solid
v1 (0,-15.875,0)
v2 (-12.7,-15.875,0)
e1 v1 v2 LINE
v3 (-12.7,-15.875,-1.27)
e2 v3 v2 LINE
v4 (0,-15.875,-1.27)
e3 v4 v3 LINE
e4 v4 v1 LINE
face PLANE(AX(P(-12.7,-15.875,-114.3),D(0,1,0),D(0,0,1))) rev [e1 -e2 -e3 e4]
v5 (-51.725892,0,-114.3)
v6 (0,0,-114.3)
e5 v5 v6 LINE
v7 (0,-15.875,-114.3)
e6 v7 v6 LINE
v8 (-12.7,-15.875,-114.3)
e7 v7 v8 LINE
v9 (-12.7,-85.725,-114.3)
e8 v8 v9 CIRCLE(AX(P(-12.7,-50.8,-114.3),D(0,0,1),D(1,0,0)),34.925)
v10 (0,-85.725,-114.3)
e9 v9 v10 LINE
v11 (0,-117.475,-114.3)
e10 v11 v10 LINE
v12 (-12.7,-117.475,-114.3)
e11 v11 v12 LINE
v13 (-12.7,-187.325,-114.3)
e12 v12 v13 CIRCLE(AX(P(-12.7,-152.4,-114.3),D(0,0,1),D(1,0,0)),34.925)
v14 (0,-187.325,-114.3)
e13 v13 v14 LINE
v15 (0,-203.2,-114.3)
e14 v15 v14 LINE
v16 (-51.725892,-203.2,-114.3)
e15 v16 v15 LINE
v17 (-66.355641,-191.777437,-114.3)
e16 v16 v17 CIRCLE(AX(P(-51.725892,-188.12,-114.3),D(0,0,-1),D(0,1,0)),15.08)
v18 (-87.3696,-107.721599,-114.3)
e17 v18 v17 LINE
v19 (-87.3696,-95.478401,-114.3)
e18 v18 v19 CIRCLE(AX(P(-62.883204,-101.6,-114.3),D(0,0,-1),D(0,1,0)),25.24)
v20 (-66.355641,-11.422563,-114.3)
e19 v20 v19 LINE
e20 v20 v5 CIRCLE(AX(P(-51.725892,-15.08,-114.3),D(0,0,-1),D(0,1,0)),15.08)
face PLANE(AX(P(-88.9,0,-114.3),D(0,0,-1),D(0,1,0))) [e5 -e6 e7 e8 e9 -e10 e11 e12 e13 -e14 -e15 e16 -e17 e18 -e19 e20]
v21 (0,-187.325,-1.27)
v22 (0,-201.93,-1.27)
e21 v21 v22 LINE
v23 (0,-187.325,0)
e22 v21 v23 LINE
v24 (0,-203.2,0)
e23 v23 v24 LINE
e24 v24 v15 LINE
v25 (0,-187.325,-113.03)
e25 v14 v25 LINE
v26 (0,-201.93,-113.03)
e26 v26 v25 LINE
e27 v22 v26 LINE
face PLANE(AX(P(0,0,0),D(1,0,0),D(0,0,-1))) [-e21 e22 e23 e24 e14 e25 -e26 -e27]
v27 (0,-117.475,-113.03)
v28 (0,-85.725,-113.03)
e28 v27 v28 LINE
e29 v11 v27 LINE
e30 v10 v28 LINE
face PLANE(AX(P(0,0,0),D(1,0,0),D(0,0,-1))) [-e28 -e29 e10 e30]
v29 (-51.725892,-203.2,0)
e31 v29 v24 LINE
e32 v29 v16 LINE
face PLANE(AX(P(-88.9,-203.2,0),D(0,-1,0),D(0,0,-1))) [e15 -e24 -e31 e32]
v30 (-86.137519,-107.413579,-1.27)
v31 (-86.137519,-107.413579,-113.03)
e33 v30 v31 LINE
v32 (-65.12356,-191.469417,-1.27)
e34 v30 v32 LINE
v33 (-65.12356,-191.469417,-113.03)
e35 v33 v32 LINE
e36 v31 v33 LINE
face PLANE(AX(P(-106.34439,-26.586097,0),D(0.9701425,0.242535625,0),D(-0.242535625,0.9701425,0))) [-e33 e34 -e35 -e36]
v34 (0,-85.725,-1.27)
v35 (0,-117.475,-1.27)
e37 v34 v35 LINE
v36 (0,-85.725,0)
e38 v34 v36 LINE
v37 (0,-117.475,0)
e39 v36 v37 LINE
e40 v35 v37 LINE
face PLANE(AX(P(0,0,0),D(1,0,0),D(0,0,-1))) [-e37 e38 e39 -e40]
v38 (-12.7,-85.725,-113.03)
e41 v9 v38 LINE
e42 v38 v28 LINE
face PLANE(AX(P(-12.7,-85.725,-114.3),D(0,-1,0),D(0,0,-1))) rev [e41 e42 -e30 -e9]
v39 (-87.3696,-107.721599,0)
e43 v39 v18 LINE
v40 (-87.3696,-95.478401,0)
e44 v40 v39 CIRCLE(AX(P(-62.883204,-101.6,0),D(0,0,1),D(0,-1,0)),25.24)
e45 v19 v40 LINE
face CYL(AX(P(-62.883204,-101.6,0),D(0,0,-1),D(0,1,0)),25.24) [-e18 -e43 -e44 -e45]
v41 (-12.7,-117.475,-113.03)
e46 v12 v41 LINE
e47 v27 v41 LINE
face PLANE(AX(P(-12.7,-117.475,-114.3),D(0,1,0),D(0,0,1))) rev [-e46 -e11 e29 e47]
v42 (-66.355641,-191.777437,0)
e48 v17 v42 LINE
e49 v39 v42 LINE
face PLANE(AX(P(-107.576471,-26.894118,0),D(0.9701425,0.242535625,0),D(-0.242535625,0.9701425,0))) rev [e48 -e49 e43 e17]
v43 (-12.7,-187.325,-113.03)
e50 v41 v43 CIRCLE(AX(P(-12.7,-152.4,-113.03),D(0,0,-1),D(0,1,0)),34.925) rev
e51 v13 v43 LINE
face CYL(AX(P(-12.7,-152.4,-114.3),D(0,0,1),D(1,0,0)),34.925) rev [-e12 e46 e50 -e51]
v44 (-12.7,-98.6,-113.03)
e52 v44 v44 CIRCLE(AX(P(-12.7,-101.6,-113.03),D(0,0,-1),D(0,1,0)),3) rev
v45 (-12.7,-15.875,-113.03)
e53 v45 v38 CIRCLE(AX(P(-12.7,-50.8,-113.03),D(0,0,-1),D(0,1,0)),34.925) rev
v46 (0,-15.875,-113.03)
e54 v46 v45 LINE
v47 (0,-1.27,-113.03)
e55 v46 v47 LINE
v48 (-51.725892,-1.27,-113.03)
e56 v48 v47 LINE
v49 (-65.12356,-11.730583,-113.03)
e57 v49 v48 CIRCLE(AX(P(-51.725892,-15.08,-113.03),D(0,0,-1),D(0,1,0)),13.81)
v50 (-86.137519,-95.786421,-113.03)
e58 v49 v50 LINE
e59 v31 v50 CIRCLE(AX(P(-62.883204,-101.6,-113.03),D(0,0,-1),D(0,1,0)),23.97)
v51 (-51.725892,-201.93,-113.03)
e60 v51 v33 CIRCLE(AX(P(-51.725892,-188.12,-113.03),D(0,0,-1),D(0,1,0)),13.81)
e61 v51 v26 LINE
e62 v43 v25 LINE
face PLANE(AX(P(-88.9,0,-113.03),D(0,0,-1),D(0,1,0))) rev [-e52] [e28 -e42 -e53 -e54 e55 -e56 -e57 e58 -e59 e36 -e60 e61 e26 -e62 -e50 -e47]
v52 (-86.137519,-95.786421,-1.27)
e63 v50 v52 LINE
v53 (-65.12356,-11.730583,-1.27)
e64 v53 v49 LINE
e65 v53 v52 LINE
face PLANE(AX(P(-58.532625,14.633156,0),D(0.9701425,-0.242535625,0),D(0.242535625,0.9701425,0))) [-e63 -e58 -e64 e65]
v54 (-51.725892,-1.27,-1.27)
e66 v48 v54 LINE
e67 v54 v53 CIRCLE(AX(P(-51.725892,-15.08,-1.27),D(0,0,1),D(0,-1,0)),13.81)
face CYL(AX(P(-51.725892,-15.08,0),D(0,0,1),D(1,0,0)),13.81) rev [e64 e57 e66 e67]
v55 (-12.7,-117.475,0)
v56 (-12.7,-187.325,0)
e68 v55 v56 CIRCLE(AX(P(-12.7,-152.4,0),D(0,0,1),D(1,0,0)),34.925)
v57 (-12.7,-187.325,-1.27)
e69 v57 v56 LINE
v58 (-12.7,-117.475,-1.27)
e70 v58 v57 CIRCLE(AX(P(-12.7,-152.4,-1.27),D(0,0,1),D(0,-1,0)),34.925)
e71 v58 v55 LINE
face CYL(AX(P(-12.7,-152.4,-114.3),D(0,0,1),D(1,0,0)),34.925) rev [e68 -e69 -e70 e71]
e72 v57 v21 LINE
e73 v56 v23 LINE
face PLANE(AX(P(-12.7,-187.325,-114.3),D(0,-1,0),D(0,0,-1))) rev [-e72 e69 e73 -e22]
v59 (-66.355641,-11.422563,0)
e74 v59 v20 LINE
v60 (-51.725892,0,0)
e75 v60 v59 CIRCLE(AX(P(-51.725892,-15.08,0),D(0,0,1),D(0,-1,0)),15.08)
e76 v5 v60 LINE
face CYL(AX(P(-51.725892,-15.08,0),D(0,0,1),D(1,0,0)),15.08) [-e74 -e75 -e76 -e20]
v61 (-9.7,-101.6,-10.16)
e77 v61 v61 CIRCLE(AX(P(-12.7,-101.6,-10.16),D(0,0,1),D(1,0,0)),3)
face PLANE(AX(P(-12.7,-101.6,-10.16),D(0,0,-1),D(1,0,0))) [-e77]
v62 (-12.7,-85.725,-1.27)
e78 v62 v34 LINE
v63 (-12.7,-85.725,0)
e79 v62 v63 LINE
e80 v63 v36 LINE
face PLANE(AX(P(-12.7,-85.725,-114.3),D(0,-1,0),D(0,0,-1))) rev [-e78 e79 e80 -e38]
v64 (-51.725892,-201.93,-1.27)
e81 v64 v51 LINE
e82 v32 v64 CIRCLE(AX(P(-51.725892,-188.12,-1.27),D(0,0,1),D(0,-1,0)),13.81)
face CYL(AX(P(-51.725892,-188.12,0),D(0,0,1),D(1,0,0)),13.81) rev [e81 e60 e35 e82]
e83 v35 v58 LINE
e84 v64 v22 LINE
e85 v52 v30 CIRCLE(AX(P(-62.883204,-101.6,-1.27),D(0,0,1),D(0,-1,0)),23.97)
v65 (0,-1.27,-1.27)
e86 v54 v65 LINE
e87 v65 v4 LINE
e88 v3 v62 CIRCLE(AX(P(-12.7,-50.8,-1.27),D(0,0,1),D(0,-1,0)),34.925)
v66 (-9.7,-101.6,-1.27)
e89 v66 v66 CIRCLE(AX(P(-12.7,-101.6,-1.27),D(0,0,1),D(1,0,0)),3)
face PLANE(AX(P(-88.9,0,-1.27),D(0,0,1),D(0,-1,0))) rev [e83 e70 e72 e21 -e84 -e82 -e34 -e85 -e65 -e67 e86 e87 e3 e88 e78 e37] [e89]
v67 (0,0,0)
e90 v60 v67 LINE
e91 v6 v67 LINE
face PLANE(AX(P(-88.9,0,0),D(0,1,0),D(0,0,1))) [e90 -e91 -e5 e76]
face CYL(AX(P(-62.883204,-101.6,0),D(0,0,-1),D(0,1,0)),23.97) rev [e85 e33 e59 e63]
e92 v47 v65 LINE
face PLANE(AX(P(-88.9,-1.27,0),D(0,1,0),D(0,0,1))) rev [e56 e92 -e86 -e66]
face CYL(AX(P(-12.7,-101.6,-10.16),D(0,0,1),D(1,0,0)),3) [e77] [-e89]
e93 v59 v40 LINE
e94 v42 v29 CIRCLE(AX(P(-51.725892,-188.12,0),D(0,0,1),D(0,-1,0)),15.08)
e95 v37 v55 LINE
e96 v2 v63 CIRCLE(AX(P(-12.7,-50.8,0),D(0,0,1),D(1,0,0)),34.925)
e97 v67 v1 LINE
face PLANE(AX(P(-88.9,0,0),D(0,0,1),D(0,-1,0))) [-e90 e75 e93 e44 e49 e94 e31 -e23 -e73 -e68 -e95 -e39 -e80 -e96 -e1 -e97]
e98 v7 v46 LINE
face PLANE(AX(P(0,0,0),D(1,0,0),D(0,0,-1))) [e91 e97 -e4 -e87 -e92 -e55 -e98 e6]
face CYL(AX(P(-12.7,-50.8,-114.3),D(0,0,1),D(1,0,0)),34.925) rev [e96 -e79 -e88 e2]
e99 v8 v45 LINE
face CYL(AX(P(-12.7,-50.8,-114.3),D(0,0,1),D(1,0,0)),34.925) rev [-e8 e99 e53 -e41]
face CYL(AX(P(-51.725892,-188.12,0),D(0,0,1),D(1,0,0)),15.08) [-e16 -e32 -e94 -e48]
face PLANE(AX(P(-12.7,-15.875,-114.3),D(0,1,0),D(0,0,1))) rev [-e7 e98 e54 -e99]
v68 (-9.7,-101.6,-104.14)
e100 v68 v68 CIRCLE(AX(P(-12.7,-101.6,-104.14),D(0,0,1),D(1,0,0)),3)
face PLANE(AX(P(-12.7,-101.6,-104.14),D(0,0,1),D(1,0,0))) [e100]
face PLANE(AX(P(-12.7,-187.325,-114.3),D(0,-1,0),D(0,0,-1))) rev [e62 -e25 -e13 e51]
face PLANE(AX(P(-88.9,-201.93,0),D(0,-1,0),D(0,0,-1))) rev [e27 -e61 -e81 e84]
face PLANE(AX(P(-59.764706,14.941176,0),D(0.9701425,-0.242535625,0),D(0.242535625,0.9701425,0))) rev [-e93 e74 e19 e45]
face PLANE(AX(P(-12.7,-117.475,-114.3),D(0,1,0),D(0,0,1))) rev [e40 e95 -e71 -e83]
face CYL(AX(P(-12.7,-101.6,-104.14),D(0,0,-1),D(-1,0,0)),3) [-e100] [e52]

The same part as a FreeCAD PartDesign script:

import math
import FreeCAD as App
import Part
import Sketcher

V = App.Vector
Q = App.Units.Quantity


def edges_at(feature, points):
    """Names of the edges that pass closest to the given points."""
    edges = feature.Shape.Edges
    near = lambda p: min(range(len(edges)), key=lambda i: edges[i].distToShape(Part.Vertex(*p))[0])
    return sorted({f"Edge{near(p) + 1}" for p in points})


def faces_at(feature, points):
    """Names of the faces that lie closest to the given points."""
    faces = feature.Shape.Faces
    near = lambda p: min(range(len(faces)), key=lambda i: faces[i].distToShape(Part.Vertex(*p))[0])
    return sorted({f"Face{near(p) + 1}" for p in points})

doc = App.newDocument("Part")
body = doc.addObject("PartDesign::Body", "Body")

# Sketch on YZ plane
sketch1 = body.newObject("Sketcher::SketchObject", "Sketch")
sketch1.AttachmentSupport = (doc.getObject("YZ_Plane"), [""])
sketch1.MapMode = "FlatFace"
sketch1.addGeometry([
    Part.LineSegment(V(0, 0, 0), V(-203, 0, 0)),
    Part.LineSegment(V(-203, 0, 0), V(-203, -114, 0)),
    Part.LineSegment(V(-203, -114, 0), V(0, -114, 0)),
    Part.LineSegment(V(0, -114, 0), V(0, 0, 0)),
], False)
sketch1.addConstraint([
    Sketcher.Constraint("Coincident", 0, 2, 1, 1),
    Sketcher.Constraint("Coincident", 1, 2, 2, 1),
    Sketcher.Constraint("Coincident", 2, 2, 3, 1),
    Sketcher.Constraint("Coincident", 3, 2, 0, 1),
    Sketcher.Constraint("Horizontal", 0),
    Sketcher.Constraint("Vertical", 1),
    Sketcher.Constraint("Horizontal", 2),
    Sketcher.Constraint("Vertical", 3),
    Sketcher.Constraint("Coincident", 3, 2, -1, 1),
    Sketcher.Constraint("DistanceX", 0, 2, 0, 1, Q("8 in")),
    Sketcher.Constraint("DistanceY", 1, 2, 1, 1, Q("4.5 in")),
])
pad1 = body.newObject("PartDesign::Pad", "Pad")
pad1.Profile = sketch1
pad1.Length = Q("3.5 in")
pad1.Reversed = True

# Sketch on XY plane
sketch2 = body.newObject("Sketcher::SketchObject", "Sketch001")
sketch2.AttachmentSupport = (doc.getObject("XY_Plane"), [""])
sketch2.MapMode = "FlatFace"
sketch2.AttachmentOffset = App.Placement(V(0, 0, -4.5 * 25.4), App.Rotation())
sketch2.addGeometry([
    Part.LineSegment(V(-89, 0, 0), V(-64, 0, 0)),  # 0
    Part.LineSegment(V(-64, 0, 0), V(-89, -102, 0)),  # 1
    Part.LineSegment(V(-89, -102, 0), V(-89, 0, 0)),  # 2
    Part.LineSegment(V(-89, -203, 0), V(-89, -102, 0)),  # 3
    Part.LineSegment(V(-89, -102, 0), V(-64, -203, 0)),  # 4
    Part.LineSegment(V(-64, -203, 0), V(-89, -203, 0)),  # 5
], False)
sketch2.addConstraint([
    Sketcher.Constraint("Coincident", 0, 2, 1, 1),
    Sketcher.Constraint("Coincident", 1, 2, 2, 1),
    Sketcher.Constraint("Coincident", 2, 2, 0, 1),
    Sketcher.Constraint("Coincident", 3, 2, 4, 1),
    Sketcher.Constraint("Coincident", 4, 2, 5, 1),
    Sketcher.Constraint("Coincident", 5, 2, 3, 1),
    Sketcher.Constraint("Horizontal", 0),
    Sketcher.Constraint("Vertical", 2),
    Sketcher.Constraint("Vertical", 3),
    Sketcher.Constraint("Horizontal", 5),
    Sketcher.Constraint("Coincident", 3, 2, 1, 2),
    Sketcher.Constraint("PointOnObject", 0, 2, -1),
    Sketcher.Constraint("Vertical", 0, 2, 4, 2),
    Sketcher.Constraint("Equal", 2, 3),
    Sketcher.Constraint("DistanceX", 0, 1, 0, 2, Q("1 in")),
    Sketcher.Constraint("DistanceY", 2, 1, 2, 2, Q("4 in")),
    Sketcher.Constraint("DistanceX", 0, 2, -1, 1, Q("2.5 in")),
])
pocket1 = body.newObject("PartDesign::Pocket", "Pocket")
pocket1.Profile = sketch2
pocket1.Type = "ThroughAll"
pocket1.Reversed = True
doc.recompute()

fillet = body.newObject("PartDesign::Fillet", "Fillet")
fillet.Base = (pocket1, edges_at(pocket1, [(-88.9, -101.6, -57.15)]))
fillet.Radius = 25.24
doc.recompute()

fillet2 = body.newObject("PartDesign::Fillet", "Fillet001")
fillet2.Base = (fillet, edges_at(fillet, [(-63.5, 0, -57.15), (-63.5, -203.2, -57.15)]))
fillet2.Radius = 15.08

# Sketch on XY plane
sketch3 = body.newObject("Sketcher::SketchObject", "Sketch002")
sketch3.AttachmentSupport = (doc.getObject("XY_Plane"), [""])
sketch3.MapMode = "FlatFace"
sketch3.addGeometry([
    Part.LineSegment(V(-13, -187, 0), V(0, -187, 0)),
    Part.LineSegment(V(0, -187, 0), V(0, -117, 0)),
    Part.LineSegment(V(0, -117, 0), V(-13, -117, 0)),
    Part.ArcOfCircle(Part.Circle(V(-13, -152, 0), V(0, 0, 1), 35), math.radians(90), math.radians(270)),
], False)
sketch3.addConstraint([
    Sketcher.Constraint("Coincident", 0, 2, 1, 1),
    Sketcher.Constraint("Coincident", 1, 2, 2, 1),
    Sketcher.Constraint("Tangent", 2, 2, 3, 1),
    Sketcher.Constraint("Tangent", 3, 2, 0, 1),
    Sketcher.Constraint("Horizontal", 0),
    Sketcher.Constraint("Vertical", 1),
    Sketcher.Constraint("Horizontal", 2),
    Sketcher.Constraint("PointOnObject", 0, 2, -2),
    Sketcher.Constraint("DistanceX", 0, 1, 0, 2, Q("0.5 in")),
    Sketcher.Constraint("DistanceY", 3, 3, -1, 1, Q("6 in")),
    Sketcher.Constraint("Radius", 3, Q("1.375 in")),
])
pocket2 = body.newObject("PartDesign::Pocket", "Pocket001")
pocket2.Profile = sketch3
pocket2.Type = "ThroughAll"
doc.recompute()

linearpattern = body.newObject("PartDesign::LinearPattern", "LinearPattern")
linearpattern.Originals = [pocket2]
linearpattern.Direction = (doc.getObject("Y_Axis"), [""])
linearpattern.Mode = "offset"
linearpattern.Offset = Q("4 in")
linearpattern.Occurrences = 2
body.Tip = linearpattern
doc.recompute()

thickness = body.newObject("PartDesign::Thickness", "Thickness")
thickness.Base = (linearpattern, faces_at(linearpattern, [
    (0, -195.262, -57.15),
    (0, -101.6, -57.15),
    (-47.625, -152.4, -57.15),
    (-6.35, -117.475, -57.15),
    (-6.35, -187.325, -57.15),
    (0, -7.938, -57.15),
    (-47.625, -50.8, -57.15),
    (-6.35, -15.875, -57.15),
    (-6.35, -85.725, -57.15),
]))
thickness.Value = Q("0.05 in")
thickness.Reversed = True
thickness.Join = "Intersection"

# Sketch on XY plane
sketch4 = body.newObject("Sketcher::SketchObject", "Sketch003")
sketch4.AttachmentSupport = (doc.getObject("XY_Plane"), [""])
sketch4.MapMode = "FlatFace"
sketch4.AttachmentOffset = App.Placement(V(0, 0, -4.45 * 25.4), App.Rotation())
sketch4.addGeometry(Part.Circle(V(-12.7, -101.6, 0), V(0, 0, 1), 3), False)
sketch4.addConstraint([
    Sketcher.Constraint("DistanceY", 0, 3, -1, 1, Q("4 in")),
    Sketcher.Constraint("DistanceX", 0, 3, -1, 1, Q("0.5 in")),
    Sketcher.Constraint("Diameter", 0, 6.0),
])
pad2 = body.newObject("PartDesign::Pad", "Pad001")
pad2.Profile = sketch4
pad2.Length = Q("0.35 in")
doc.recompute()

datumplane = body.newObject("PartDesign::Plane", "DatumPlane")
datumplane.AttachmentSupport = (doc.getObject("XY_Plane"), [""])
datumplane.MapMode = "FlatFace"
datumplane.AttachmentOffset = App.Placement(V(0, 0, -2.25 * 25.4), App.Rotation())
mirrored = body.newObject("PartDesign::Mirrored", "Mirrored")
mirrored.Originals = [pad2]
mirrored.MirrorPlane = (datumplane, [""])
body.Tip = mirrored

doc.recompute()
